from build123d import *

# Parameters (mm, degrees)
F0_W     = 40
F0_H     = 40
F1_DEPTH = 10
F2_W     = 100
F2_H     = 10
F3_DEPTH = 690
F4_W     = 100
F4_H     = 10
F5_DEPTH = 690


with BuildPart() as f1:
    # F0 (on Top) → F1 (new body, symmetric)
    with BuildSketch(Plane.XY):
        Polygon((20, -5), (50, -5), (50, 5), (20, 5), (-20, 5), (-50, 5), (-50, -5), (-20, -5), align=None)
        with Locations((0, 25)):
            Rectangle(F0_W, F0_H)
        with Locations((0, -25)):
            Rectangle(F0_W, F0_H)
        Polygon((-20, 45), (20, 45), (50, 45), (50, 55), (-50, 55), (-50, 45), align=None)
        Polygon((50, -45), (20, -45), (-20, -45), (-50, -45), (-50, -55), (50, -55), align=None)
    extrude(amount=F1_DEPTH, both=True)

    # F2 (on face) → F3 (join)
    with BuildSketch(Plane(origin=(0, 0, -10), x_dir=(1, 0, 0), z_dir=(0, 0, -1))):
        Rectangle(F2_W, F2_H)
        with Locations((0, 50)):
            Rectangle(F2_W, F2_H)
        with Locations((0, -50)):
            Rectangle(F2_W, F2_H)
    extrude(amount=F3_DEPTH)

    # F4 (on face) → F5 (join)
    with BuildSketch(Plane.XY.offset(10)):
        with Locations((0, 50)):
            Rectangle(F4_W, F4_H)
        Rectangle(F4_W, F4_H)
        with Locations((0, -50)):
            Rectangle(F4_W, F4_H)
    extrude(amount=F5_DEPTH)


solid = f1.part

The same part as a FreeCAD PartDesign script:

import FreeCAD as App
import Part
import Sketcher


def add_polygon(sketch, points):
    """Adds a closed chain of lines whose ends are joined by coincident constraints."""
    first, n = sketch.GeometryCount, len(points)
    for a, b in zip(points, points[1:] + points[:1]):
        sketch.addGeometry(Part.LineSegment(App.Vector(*a, 0), App.Vector(*b, 0)), False)
    for i in range(n):
        sketch.addConstraint(Sketcher.Constraint("Coincident", first + i, 2, first + (i + 1) % n, 1))

doc = App.newDocument("Part")
body = doc.addObject("PartDesign::Body", "Body")

# Sketch on XY plane
sketch1 = body.newObject("Sketcher::SketchObject", "Sketch")
sketch1.AttachmentSupport = (doc.getObject("XY_Plane"), [""])
sketch1.MapMode = "FlatFace"
add_polygon(sketch1, [(50, -5), (50, 5), (20, 5), (20, 45), (50, 45), (50, 55), (-50, 55), (-50, 45), (-20, 45), (-20, 5), (-50, 5), (-50, -5), (-20, -5), (-20, -45), (-50, -45), (-50, -55), (50, -55), (50, -45), (20, -45), (20, -5)])  # lines 0-19
sketch1.addConstraint([
    Sketcher.Constraint("Vertical", 0),
    Sketcher.Constraint("Horizontal", 1),
    Sketcher.Constraint("Vertical", 2),
    Sketcher.Constraint("Horizontal", 3),
    Sketcher.Constraint("Vertical", 4),
    Sketcher.Constraint("Horizontal", 5),
    Sketcher.Constraint("Vertical", 6),
    Sketcher.Constraint("Horizontal", 7),
    Sketcher.Constraint("Vertical", 8),
    Sketcher.Constraint("Horizontal", 9),
    Sketcher.Constraint("Vertical", 10),
    Sketcher.Constraint("Horizontal", 11),
    Sketcher.Constraint("Vertical", 12),
    Sketcher.Constraint("Horizontal", 13),
    Sketcher.Constraint("Vertical", 14),
    Sketcher.Constraint("Horizontal", 15),
    Sketcher.Constraint("Vertical", 16),
    Sketcher.Constraint("Horizontal", 17),
    Sketcher.Constraint("Vertical", 18),
    Sketcher.Constraint("Horizontal", 19),
    Sketcher.Constraint("Symmetric", 0, 2, 10, 2, -1, 1),
    Sketcher.Constraint("Symmetric", 2, 2, 12, 2, -1, 1),
    Sketcher.Constraint("Symmetric", 4, 2, 14, 2, -1, 1),
    Sketcher.Constraint("Symmetric", 6, 2, 16, 2, -1, 1),
    Sketcher.Constraint("Symmetric", 8, 2, 18, 2, -1, 1),
    Sketcher.Constraint("Symmetric", 3, 2, 6, 2, -2),
    Sketcher.Constraint("Symmetric", 1, 2, 8, 2, -2),
    Sketcher.Constraint("Vertical", 0, 2, 3, 2),
    Sketcher.Constraint("Equal", 0, 4),
    Sketcher.Constraint("DistanceX", 1, 2, 1, 1, 30.0),
    Sketcher.Constraint("DistanceX", 5, 2, 5, 1, 100.0),
    Sketcher.Constraint("DistanceY", 0, 1, 0, 2, 10.0),
    Sketcher.Constraint("DistanceY", 2, 1, 2, 2, 40.0),
])
pad1 = body.newObject("PartDesign::Pad", "Pad")
pad1.Profile = sketch1
pad1.Length = 20
pad1.Midplane = True

# Sketch on XY plane
sketch2 = body.newObject("Sketcher::SketchObject", "Sketch001")
sketch2.AttachmentSupport = (doc.getObject("XY_Plane"), [""])
sketch2.MapMode = "FlatFace"
sketch2.AttachmentOffset = App.Placement(App.Vector(0, 0, -10), App.Rotation())
add_polygon(sketch2, [(-50, -5), (-50, 5), (50, 5), (50, -5)])  # lines 0-3
add_polygon(sketch2, [(-50, -55), (-50, -45), (50, -45), (50, -55)])  # lines 4-7
add_polygon(sketch2, [(-50, 45), (-50, 55), (50, 55), (50, 45)])  # lines 8-11
sketch2.addConstraint([
    Sketcher.Constraint("Vertical", 0),
    Sketcher.Constraint("Horizontal", 1),
    Sketcher.Constraint("Vertical", 2),
    Sketcher.Constraint("Horizontal", 3),
    Sketcher.Constraint("Vertical", 4),
    Sketcher.Constraint("Horizontal", 5),
    Sketcher.Constraint("Vertical", 6),
    Sketcher.Constraint("Horizontal", 7),
    Sketcher.Constraint("Vertical", 8),
    Sketcher.Constraint("Horizontal", 9),
    Sketcher.Constraint("Vertical", 10),
    Sketcher.Constraint("Horizontal", 11),
    Sketcher.Constraint("Symmetric", 0, 2, 2, 2, -1, 1),
    Sketcher.Constraint("Symmetric", 6, 2, 8, 2, -1, 1),
    Sketcher.Constraint("Symmetric", 4, 2, 10, 2, -1, 1),
    Sketcher.Constraint("Vertical", 3, 2, 4, 2),
    Sketcher.Constraint("Vertical", 2, 2, 5, 2),
    Sketcher.Constraint("Equal", 2, 4),
    Sketcher.Constraint("DistanceX", 1, 1, 1, 2, 100.0),
    Sketcher.Constraint("DistanceY", 0, 1, 0, 2, 10.0),
    Sketcher.Constraint("DistanceY", 4, 2, -1, 1, 45.0),
])
pad2 = body.newObject("PartDesign::Pad", "Pad001")
pad2.Profile = sketch2
pad2.Length = 690
pad2.Reversed = True

# Sketch on XY plane
sketch3 = body.newObject("Sketcher::SketchObject", "Sketch002")
sketch3.AttachmentSupport = (doc.getObject("XY_Plane"), [""])
sketch3.MapMode = "FlatFace"
sketch3.AttachmentOffset = App.Placement(App.Vector(0, 0, 10), App.Rotation())
add_polygon(sketch3, [(-50, 55), (-50, 45), (50, 45), (50, 55)])  # lines 0-3
add_polygon(sketch3, [(-50, 5), (-50, -5), (50, -5), (50, 5)])  # lines 4-7
add_polygon(sketch3, [(-50, -45), (-50, -55), (50, -55), (50, -45)])  # lines 8-11
sketch3.addConstraint([
    Sketcher.Constraint("Vertical", 0),
    Sketcher.Constraint("Horizontal", 1),
    Sketcher.Constraint("Vertical", 2),
    Sketcher.Constraint("Horizontal", 3),
    Sketcher.Constraint("Vertical", 4),
    Sketcher.Constraint("Horizontal", 5),
    Sketcher.Constraint("Vertical", 6),
    Sketcher.Constraint("Horizontal", 7),
    Sketcher.Constraint("Vertical", 8),
    Sketcher.Constraint("Horizontal", 9),
    Sketcher.Constraint("Vertical", 10),
    Sketcher.Constraint("Horizontal", 11),
    Sketcher.Constraint("Symmetric", 4, 2, 6, 2, -1, 1),
    Sketcher.Constraint("Symmetric", 2, 2, 8, 2, -1, 1),
    Sketcher.Constraint("Symmetric", 0, 2, 10, 2, -1, 1),
    Sketcher.Constraint("Vertical", 3, 2, 4, 2),
    Sketcher.Constraint("Vertical", 2, 2, 5, 2),
    Sketcher.Constraint("Equal", 2, 4),
    Sketcher.Constraint("DistanceX", 1, 1, 1, 2, 100.0),
    Sketcher.Constraint("DistanceY", 0, 2, 0, 1, 10.0),
    Sketcher.Constraint("DistanceY", -1, 1, 0, 2, 45.0),
])
pad3 = body.newObject("PartDesign::Pad", "Pad002")
pad3.Profile = sketch3
pad3.Length = 690

doc.recompute()
